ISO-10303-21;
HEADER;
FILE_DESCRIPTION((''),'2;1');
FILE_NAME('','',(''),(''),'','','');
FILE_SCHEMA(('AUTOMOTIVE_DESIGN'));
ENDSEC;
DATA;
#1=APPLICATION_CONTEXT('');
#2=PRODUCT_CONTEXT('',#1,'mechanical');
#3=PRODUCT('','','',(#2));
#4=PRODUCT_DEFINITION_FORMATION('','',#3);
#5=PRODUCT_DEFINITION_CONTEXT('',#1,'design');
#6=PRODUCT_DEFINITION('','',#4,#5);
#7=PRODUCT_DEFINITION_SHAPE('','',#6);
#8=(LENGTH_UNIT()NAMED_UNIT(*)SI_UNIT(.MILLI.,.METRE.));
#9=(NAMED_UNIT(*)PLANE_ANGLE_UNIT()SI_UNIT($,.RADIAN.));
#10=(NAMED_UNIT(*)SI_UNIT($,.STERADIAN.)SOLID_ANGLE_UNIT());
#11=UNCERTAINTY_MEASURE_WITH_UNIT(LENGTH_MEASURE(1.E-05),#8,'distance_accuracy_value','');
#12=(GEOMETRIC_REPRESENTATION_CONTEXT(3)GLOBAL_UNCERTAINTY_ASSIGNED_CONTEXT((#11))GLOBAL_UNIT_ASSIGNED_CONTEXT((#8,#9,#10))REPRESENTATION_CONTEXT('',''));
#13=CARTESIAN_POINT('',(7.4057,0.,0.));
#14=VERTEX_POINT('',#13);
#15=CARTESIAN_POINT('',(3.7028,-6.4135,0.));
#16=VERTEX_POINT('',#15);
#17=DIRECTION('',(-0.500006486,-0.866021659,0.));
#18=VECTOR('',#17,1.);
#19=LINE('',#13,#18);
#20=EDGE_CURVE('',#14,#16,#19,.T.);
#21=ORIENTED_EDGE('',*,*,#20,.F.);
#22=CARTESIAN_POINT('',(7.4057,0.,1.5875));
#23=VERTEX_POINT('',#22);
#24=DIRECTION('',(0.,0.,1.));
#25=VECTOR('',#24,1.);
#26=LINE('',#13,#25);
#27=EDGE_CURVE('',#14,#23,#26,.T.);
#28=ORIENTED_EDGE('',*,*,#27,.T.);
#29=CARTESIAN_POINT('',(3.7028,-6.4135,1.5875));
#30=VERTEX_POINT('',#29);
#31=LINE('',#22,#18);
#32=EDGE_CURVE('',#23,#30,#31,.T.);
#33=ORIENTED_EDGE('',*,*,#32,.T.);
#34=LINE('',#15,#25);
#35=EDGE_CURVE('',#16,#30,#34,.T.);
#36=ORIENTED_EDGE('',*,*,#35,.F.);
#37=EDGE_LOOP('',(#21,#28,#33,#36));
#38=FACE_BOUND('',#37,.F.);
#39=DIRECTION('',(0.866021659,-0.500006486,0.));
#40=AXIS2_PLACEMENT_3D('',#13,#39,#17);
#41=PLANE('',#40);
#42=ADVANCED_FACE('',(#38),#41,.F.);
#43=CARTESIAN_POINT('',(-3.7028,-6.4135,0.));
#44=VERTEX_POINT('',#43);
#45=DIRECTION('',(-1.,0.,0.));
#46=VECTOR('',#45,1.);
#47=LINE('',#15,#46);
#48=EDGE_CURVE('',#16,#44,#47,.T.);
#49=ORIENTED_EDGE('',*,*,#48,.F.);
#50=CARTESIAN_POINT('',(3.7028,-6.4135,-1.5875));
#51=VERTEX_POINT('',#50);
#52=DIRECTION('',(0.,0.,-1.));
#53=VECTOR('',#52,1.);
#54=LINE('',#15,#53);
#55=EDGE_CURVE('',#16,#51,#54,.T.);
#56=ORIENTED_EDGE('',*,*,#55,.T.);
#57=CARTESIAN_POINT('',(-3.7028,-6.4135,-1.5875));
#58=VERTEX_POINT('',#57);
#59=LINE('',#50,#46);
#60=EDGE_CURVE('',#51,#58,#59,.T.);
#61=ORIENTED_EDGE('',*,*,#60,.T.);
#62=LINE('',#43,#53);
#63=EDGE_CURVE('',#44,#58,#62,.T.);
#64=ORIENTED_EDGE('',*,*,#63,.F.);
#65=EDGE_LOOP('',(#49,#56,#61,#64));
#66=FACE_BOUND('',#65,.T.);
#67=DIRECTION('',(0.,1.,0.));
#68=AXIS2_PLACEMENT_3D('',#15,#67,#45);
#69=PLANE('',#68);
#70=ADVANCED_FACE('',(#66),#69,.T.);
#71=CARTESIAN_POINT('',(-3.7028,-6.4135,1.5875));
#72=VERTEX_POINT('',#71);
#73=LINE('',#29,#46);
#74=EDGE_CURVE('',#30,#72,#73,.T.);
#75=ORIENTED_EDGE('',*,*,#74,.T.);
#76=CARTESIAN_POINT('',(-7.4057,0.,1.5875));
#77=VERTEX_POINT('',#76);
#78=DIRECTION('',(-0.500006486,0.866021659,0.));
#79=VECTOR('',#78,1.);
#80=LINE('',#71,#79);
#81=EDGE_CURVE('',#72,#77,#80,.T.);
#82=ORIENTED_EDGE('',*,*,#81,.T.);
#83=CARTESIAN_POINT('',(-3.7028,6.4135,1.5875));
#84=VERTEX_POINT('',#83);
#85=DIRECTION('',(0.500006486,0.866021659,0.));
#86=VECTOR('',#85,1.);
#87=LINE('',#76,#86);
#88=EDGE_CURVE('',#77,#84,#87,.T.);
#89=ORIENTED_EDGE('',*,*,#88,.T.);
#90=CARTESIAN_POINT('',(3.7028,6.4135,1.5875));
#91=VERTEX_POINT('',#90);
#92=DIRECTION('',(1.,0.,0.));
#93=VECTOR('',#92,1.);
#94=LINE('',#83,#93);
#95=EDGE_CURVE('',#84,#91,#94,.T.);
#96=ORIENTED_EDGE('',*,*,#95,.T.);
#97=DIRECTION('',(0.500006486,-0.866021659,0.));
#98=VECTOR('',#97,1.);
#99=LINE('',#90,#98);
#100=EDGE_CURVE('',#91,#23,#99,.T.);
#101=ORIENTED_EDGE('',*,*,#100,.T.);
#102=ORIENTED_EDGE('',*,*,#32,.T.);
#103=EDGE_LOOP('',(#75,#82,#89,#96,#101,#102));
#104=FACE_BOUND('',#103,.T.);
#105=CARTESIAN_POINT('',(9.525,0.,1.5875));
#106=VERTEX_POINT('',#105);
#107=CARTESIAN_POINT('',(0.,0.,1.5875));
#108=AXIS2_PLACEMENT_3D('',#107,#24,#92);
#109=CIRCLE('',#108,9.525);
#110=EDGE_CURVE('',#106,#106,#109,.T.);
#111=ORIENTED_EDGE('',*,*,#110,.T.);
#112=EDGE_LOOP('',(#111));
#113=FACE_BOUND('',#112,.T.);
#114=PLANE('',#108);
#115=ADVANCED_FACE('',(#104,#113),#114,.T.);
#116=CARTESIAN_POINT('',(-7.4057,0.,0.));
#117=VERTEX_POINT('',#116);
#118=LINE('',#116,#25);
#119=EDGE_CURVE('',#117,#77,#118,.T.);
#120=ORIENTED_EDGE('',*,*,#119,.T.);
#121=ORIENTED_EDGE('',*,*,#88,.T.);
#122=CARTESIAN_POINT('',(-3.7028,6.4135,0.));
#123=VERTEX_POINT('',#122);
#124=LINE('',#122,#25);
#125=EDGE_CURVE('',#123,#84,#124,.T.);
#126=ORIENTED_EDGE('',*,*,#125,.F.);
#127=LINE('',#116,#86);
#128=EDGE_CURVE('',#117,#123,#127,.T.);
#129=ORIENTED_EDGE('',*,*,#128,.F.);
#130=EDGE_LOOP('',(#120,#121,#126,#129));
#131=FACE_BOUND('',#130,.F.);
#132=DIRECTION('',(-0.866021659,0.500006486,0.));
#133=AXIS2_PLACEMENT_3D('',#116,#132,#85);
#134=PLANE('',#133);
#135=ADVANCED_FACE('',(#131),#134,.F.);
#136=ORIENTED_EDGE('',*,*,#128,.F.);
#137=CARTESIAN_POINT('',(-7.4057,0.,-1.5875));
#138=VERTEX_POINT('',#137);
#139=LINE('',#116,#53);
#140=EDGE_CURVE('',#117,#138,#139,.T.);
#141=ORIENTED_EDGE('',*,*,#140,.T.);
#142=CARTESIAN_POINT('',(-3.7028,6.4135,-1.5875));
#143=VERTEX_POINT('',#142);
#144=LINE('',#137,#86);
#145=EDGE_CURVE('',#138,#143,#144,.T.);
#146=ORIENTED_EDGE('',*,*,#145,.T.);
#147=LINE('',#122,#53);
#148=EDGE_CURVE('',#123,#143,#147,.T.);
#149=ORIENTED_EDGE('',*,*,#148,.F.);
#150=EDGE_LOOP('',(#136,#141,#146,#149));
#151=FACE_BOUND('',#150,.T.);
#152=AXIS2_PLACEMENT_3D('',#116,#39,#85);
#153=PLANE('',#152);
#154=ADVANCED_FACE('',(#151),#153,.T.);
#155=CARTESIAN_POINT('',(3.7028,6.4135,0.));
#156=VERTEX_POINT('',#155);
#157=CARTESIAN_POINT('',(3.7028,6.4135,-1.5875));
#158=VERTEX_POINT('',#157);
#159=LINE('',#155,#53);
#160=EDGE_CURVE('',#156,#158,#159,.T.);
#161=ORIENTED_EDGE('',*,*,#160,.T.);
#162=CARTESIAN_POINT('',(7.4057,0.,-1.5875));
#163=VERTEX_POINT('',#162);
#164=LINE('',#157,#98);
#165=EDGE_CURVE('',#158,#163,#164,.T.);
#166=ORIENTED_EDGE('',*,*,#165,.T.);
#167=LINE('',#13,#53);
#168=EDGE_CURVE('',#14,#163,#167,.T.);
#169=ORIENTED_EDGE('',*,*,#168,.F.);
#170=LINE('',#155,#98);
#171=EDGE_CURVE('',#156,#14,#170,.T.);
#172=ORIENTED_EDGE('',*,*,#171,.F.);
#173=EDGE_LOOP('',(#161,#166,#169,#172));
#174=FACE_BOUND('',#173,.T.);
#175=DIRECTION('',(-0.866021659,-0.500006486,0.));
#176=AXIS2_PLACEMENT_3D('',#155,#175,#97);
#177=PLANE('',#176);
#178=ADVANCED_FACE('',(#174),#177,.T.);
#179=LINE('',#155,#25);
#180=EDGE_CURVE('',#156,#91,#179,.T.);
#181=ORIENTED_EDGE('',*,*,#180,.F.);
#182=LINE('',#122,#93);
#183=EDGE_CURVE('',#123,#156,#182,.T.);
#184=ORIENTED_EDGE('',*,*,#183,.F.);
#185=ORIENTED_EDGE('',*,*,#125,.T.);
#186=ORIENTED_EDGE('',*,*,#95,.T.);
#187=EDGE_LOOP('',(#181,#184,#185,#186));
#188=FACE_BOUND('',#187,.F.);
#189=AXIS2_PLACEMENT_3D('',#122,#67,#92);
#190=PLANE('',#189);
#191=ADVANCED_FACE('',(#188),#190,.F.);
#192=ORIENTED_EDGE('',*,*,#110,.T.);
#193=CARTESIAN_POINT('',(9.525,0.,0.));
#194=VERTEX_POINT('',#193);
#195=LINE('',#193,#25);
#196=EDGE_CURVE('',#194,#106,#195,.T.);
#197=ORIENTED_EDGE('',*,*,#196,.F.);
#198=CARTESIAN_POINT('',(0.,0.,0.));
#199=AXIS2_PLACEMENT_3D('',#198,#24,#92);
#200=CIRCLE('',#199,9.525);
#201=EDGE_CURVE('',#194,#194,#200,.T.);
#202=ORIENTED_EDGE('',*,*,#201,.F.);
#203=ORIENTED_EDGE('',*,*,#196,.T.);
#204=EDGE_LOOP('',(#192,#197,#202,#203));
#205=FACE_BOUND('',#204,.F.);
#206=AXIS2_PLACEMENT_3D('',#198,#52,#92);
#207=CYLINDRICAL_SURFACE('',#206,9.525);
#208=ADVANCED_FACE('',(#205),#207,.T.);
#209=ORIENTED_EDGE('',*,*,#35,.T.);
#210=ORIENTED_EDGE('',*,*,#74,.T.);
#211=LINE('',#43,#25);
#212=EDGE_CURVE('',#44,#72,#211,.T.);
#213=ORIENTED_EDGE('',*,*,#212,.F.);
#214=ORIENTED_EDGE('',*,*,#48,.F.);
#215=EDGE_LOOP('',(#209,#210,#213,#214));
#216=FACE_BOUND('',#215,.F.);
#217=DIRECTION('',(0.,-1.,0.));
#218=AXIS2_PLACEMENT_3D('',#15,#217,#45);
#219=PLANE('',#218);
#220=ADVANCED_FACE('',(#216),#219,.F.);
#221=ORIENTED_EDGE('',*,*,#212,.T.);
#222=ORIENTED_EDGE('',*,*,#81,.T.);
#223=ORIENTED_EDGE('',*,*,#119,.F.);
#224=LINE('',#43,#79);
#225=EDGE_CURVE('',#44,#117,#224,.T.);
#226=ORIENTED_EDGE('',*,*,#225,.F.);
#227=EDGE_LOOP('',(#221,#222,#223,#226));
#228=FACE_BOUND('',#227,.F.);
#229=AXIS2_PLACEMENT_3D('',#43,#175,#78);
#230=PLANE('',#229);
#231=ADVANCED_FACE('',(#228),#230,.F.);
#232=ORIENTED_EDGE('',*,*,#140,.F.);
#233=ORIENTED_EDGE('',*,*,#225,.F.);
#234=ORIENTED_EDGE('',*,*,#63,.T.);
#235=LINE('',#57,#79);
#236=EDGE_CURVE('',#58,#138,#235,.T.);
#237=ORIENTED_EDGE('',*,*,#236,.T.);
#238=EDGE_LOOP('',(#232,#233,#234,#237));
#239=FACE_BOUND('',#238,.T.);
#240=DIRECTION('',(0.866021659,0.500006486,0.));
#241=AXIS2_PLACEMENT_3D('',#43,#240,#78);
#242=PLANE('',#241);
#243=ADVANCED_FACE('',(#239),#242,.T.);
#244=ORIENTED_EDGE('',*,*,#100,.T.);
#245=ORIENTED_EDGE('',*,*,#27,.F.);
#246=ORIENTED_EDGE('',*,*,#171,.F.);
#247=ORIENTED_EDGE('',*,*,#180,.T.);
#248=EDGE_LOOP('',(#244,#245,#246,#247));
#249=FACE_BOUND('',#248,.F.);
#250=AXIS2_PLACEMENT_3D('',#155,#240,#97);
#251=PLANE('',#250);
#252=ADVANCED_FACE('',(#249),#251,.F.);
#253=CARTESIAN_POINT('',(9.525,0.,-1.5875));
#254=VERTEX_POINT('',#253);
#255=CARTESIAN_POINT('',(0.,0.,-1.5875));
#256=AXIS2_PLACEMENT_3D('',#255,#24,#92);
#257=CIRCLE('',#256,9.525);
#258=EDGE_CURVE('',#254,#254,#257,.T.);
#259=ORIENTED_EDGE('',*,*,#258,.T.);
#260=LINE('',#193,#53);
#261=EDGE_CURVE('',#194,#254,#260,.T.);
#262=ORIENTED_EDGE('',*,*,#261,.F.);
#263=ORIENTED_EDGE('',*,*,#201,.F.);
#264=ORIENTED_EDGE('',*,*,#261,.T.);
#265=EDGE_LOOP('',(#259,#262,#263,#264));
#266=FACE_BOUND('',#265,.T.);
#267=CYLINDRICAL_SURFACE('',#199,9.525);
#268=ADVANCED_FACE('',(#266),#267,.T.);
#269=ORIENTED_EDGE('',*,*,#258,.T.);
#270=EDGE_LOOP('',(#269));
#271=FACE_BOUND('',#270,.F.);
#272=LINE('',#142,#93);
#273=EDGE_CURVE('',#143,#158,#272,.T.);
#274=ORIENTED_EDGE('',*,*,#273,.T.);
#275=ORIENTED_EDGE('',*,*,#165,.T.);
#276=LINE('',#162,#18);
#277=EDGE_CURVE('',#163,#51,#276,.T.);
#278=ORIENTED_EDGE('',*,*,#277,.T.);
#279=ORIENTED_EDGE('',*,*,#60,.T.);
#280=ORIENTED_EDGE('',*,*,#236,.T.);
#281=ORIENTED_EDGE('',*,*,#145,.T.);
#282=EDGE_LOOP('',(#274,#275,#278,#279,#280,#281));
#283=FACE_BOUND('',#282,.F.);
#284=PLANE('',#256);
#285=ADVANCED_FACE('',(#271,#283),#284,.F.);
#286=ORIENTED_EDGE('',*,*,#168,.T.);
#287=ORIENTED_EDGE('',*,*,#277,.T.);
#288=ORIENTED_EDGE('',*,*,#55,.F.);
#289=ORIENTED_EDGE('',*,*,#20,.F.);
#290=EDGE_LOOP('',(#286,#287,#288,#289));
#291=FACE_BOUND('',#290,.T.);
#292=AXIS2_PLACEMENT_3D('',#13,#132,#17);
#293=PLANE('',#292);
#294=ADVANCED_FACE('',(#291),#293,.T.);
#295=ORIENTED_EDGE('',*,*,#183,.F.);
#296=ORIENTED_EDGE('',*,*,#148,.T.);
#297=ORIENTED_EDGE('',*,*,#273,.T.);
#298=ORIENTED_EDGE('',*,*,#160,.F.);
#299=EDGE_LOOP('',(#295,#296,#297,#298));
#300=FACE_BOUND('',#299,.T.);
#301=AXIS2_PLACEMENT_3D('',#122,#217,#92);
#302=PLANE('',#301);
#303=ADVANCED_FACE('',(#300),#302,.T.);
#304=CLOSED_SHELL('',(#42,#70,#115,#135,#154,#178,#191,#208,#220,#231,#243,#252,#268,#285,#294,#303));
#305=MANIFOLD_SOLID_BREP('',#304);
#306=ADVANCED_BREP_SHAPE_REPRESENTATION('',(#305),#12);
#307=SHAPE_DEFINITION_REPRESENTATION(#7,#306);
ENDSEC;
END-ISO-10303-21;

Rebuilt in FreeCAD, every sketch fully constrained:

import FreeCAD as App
import Part
import Sketcher

V = App.Vector
Q = App.Units.Quantity

doc = App.newDocument("Part")
body = doc.addObject("PartDesign::Body", "Body")

# Sketch on XY plane
sketch1 = body.newObject("Sketcher::SketchObject", "Sketch")
sketch1.AttachmentSupport = (doc.getObject("XY_Plane"), [""])
sketch1.MapMode = "FlatFace"
sketch1.addGeometry(Part.Circle(V(0, 0, 0), V(0, 0, 1), 10), False)
sketch1.addGeometry(Part.LineSegment(V(4, -6, 0), V(-4, -6, 0)), False)
sketch1.addGeometry(Part.LineSegment(V(-4, -6, 0), V(-7, 0, 0)), False)
sketch1.addGeometry(Part.LineSegment(V(-7, 0, 0), V(-4, 6, 0)), False)
sketch1.addGeometry(Part.LineSegment(V(-4, 6, 0), V(4, 6, 0)), False)
sketch1.addGeometry(Part.LineSegment(V(4, 6, 0), V(7, 0, 0)), False)
sketch1.addGeometry(Part.LineSegment(V(7, 0, 0), V(4, -6, 0)), False)
sketch1.addConstraint(Sketcher.Constraint("Coincident", 1, 2, 2, 1))
sketch1.addConstraint(Sketcher.Constraint("Coincident", 2, 2, 3, 1))
sketch1.addConstraint(Sketcher.Constraint("Coincident", 3, 2, 4, 1))
sketch1.addConstraint(Sketcher.Constraint("Coincident", 4, 2, 5, 1))
sketch1.addConstraint(Sketcher.Constraint("Coincident", 5, 2, 6, 1))
sketch1.addConstraint(Sketcher.Constraint("Coincident", 6, 2, 1, 1))
sketch1.addConstraint(Sketcher.Constraint("Horizontal", 1))
sketch1.addConstraint(Sketcher.Constraint("Horizontal", 4))
sketch1.addConstraint(Sketcher.Constraint("Coincident", 0, 3, -1, 1))
sketch1.addConstraint(Sketcher.Constraint("Symmetric", 1, 2, 4, 2, -1, 1))
sketch1.addConstraint(Sketcher.Constraint("Symmetric", 2, 2, 5, 2, -1, 1))
sketch1.addConstraint(Sketcher.Constraint("PointOnObject", 2, 2, -1))
sketch1.addConstraint(Sketcher.Constraint("Parallel", 3, 6))
sketch1.addConstraint(Sketcher.Constraint("Vertical", 1, 2, 3, 2))
sketch1.addConstraint(Sketcher.Constraint("Diameter", 0, Q("0.75 in")))
sketch1.addConstraint(Sketcher.Constraint("Angle", 2, Q("120.0004 deg")))
sketch1.addConstraint(Sketcher.Constraint("DistanceY", 1, 2, 3, 2, Q("0.505 in")))
sketch1.addConstraint(Sketcher.Constraint("DistanceX", 1, 2, 1, 1, 7.4056))
pad1 = body.newObject("PartDesign::Pad", "Pad")
pad1.Profile = sketch1
pad1.Length = Q("0.125 in")
pad1.Midplane = True

doc.recompute()
